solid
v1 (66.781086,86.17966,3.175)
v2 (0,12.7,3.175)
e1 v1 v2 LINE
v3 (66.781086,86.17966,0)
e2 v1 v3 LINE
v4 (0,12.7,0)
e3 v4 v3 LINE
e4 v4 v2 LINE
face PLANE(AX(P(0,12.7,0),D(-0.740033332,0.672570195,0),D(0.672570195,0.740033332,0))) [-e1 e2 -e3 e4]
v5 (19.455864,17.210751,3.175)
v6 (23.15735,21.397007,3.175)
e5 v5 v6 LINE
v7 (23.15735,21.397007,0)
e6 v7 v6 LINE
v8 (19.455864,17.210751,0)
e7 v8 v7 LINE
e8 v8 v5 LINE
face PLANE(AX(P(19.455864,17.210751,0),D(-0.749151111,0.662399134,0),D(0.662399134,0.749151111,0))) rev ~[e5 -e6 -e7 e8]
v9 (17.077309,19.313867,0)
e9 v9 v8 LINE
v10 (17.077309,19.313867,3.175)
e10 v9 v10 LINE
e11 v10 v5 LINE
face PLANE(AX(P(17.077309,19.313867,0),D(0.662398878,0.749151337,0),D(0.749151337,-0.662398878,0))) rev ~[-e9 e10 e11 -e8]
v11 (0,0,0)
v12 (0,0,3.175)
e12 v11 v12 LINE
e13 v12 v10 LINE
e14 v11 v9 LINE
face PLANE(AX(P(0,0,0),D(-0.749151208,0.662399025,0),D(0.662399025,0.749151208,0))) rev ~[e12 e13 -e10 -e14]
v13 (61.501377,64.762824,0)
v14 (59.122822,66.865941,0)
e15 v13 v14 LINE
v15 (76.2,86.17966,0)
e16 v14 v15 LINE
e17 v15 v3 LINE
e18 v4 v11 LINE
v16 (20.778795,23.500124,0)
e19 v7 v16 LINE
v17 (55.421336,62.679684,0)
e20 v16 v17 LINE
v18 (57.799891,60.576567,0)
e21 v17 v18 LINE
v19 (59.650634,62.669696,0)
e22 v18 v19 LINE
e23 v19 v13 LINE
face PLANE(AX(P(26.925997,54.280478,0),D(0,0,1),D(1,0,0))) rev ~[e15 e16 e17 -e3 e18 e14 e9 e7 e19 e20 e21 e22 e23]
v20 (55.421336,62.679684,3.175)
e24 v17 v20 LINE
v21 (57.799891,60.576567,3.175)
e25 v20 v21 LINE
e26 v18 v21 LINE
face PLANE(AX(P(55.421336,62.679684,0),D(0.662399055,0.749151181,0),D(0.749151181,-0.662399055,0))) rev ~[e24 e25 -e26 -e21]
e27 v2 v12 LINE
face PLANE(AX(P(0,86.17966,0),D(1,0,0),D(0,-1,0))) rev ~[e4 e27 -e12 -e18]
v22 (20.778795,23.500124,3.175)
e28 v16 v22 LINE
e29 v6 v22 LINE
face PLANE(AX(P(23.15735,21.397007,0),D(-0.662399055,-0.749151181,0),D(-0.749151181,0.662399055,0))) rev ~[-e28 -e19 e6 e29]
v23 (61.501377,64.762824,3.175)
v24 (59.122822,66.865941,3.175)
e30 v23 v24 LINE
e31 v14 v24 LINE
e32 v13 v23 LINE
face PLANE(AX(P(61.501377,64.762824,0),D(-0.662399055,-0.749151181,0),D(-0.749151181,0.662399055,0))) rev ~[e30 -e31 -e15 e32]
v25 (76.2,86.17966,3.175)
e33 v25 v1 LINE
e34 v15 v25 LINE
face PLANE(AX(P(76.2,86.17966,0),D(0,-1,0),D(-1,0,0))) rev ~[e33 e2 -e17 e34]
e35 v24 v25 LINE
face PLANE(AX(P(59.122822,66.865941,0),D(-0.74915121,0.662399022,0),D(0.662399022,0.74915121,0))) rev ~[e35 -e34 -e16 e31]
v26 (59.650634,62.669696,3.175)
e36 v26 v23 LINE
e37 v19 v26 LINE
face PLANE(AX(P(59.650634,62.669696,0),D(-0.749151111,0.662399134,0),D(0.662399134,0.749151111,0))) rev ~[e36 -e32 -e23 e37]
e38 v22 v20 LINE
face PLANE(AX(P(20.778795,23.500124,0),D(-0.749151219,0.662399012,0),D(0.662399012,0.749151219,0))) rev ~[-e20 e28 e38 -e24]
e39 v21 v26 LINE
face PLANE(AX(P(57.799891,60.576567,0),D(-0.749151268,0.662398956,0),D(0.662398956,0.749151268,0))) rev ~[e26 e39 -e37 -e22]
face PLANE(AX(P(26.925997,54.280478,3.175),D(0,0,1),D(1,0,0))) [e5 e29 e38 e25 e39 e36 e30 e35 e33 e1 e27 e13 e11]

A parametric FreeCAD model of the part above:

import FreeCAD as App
import Part
import Sketcher

V = App.Vector
Q = App.Units.Quantity

doc = App.newDocument("Part")
params = doc.addObject("Spreadsheet::Sheet", "Params")
for row, (alias, value) in enumerate([
    ("sketch1_width", "3 in"),
    ("sketch1_length", "0.22 in"),
    ("sketch1_length2", "0.11 in"),
    ("sketch1_length3", "1.015 in"),
    ("sketch1_length4", "0.125 in"),
    ("pad1_length", "0.125 in"),
    ("pocket1_length", "1 in"),
], start=1):
    params.set(f"A{row}", alias)
    params.set(f"B{row}", "=" + value)
    params.setAlias(f"B{row}", alias)

body = doc.addObject("PartDesign::Body", "Body")

# Sketch on XY plane
sketch1 = body.newObject("Sketcher::SketchObject", "Sketch")
sketch1.AttachmentSupport = (doc.getObject("XY_Plane"), [""])
sketch1.MapMode = "FlatFace"
sketch1.addGeometry(Part.LineSegment(V(0, 86.2, 0), V(0, 0, 0)), False)
sketch1.addGeometry(Part.LineSegment(V(0, 0, 0), V(17.1, 19.3, 0)), False)
sketch1.addGeometry(Part.LineSegment(V(17.1, 19.3, 0), V(19.5, 17.2, 0)), False)
sketch1.addGeometry(Part.LineSegment(V(19.5, 17.2, 0), V(23.2, 21.4, 0)), False)
sketch1.addGeometry(Part.LineSegment(V(23.2, 21.4, 0), V(20.8, 23.5, 0)), False)
sketch1.addGeometry(Part.LineSegment(V(20.8, 23.5, 0), V(55.4, 62.7, 0)), False)
sketch1.addGeometry(Part.LineSegment(V(55.4, 62.7, 0), V(57.8, 60.6, 0)), False)
sketch1.addGeometry(Part.LineSegment(V(57.8, 60.6, 0), V(59.7, 62.7, 0)), False)
sketch1.addGeometry(Part.LineSegment(V(59.7, 62.7, 0), V(61.5, 64.8, 0)), False)
sketch1.addGeometry(Part.LineSegment(V(61.5, 64.8, 0), V(59.1, 66.9, 0)), False)
sketch1.addGeometry(Part.LineSegment(V(59.1, 66.9, 0), V(76.2, 86.2, 0)), False)
sketch1.addGeometry(Part.LineSegment(V(76.2, 86.2, 0), V(0, 86.2, 0)), False)
sketch1.addConstraint(Sketcher.Constraint("Coincident", 0, 2, 1, 1))
sketch1.addConstraint(Sketcher.Constraint("Coincident", 1, 2, 2, 1))
sketch1.addConstraint(Sketcher.Constraint("Coincident", 2, 2, 3, 1))
sketch1.addConstraint(Sketcher.Constraint("Coincident", 3, 2, 4, 1))
sketch1.addConstraint(Sketcher.Constraint("Coincident", 4, 2, 5, 1))
sketch1.addConstraint(Sketcher.Constraint("Coincident", 5, 2, 6, 1))
sketch1.addConstraint(Sketcher.Constraint("Coincident", 6, 2, 7, 1))
sketch1.addConstraint(Sketcher.Constraint("Coincident", 7, 2, 8, 1))
sketch1.addConstraint(Sketcher.Constraint("Coincident", 8, 2, 9, 1))
sketch1.addConstraint(Sketcher.Constraint("Coincident", 9, 2, 10, 1))
sketch1.addConstraint(Sketcher.Constraint("Coincident", 10, 2, 11, 1))
sketch1.addConstraint(Sketcher.Constraint("Coincident", 11, 2, 0, 1))
sketch1.addConstraint(Sketcher.Constraint("Vertical", 0))
sketch1.addConstraint(Sketcher.Constraint("Horizontal", 11))
sketch1.addConstraint(Sketcher.Constraint("Coincident", 0, 2, -1, 1))
sketch1.addConstraint(Sketcher.Constraint("Perpendicular", 1, 2))
sketch1.addConstraint(Sketcher.Constraint("Perpendicular", 2, 3))
sketch1.addConstraint(Sketcher.Constraint("Perpendicular", 3, 4))
sketch1.addConstraint(Sketcher.Constraint("Perpendicular", 4, 5))
sketch1.addConstraint(Sketcher.Constraint("Perpendicular", 5, 6))
sketch1.addConstraint(Sketcher.Constraint("Perpendicular", 6, 7))
sketch1.addConstraint(Sketcher.Constraint("Parallel", 7, 8))
sketch1.addConstraint(Sketcher.Constraint("Perpendicular", 8, 9))
sketch1.addConstraint(Sketcher.Constraint("Perpendicular", 9, 10))
sketch1.addConstraint(Sketcher.Constraint("Equal", 2, 4))
sketch1.addConstraint(Sketcher.Constraint("Equal", 4, 6))
sketch1.addConstraint(Sketcher.Constraint("Equal", 7, 8))
sketch1.addConstraint(Sketcher.Constraint("Equal", 6, 9))
sketch1.addConstraint(Sketcher.Constraint("DistanceX", 11, 2, 11, 1, Q("3 in")))
sketch1.addConstraint(Sketcher.Constraint("Distance", 3, Q("0.22 in")))
sketch1.addConstraint(Sketcher.Constraint("Distance", 7, Q("0.11 in")))
sketch1.addConstraint(Sketcher.Constraint("Distance", 1, Q("1.015 in")))
sketch1.addConstraint(Sketcher.Constraint("Distance", 2, Q("0.125 in")))
sketch1.addConstraint(Sketcher.Constraint("Distance", 5, Q("2.059 in")))
sketch1.addConstraint(Sketcher.Constraint("DistanceY", 0, 2, 0, 1, Q("3.3929 in")))
sketch1.setExpression("Constraints[28]", "Params.sketch1_width")
sketch1.setExpression("Constraints[29]", "Params.sketch1_length")
sketch1.setExpression("Constraints[30]", "Params.sketch1_length2")
sketch1.setExpression("Constraints[31]", "Params.sketch1_length3")
sketch1.setExpression("Constraints[32]", "Params.sketch1_length4")
pad1 = body.newObject("PartDesign::Pad", "Pad")
pad1.Profile = sketch1
pad1.setExpression("Length", "Params.pad1_length")

# Sketch on XY plane
sketch2 = body.newObject("Sketcher::SketchObject", "Sketch001")
sketch2.AttachmentSupport = (doc.getObject("XY_Plane"), [""])
sketch2.MapMode = "FlatFace"
sketch2.addGeometry(Part.LineSegment(V(0, 91, 0), V(0, 13, 0)), False)
sketch2.addGeometry(Part.LineSegment(V(0, 13, 0), V(71, 91, 0)), False)
sketch2.addGeometry(Part.LineSegment(V(71, 91, 0), V(0, 91, 0)), False)
sketch2.addConstraint(Sketcher.Constraint("Coincident", 0, 2, 1, 1))
sketch2.addConstraint(Sketcher.Constraint("Coincident", 1, 2, 2, 1))
sketch2.addConstraint(Sketcher.Constraint("Coincident", 2, 2, 0, 1))
sketch2.addConstraint(Sketcher.Constraint("Vertical", 0))
sketch2.addConstraint(Sketcher.Constraint("Horizontal", 2))
sketch2.addConstraint(Sketcher.Constraint("PointOnObject", 0, 2, -2))
sketch2.addConstraint(Sketcher.Constraint("DistanceY", -1, 1, 0, 2, Q("0.5 in")))
sketch2.addConstraint(Sketcher.Constraint("Distance", 1, 105.912359))
sketch2.addConstraint(Sketcher.Constraint("DistanceX", 2, 2, 2, 1, 71.233496))
pocket1 = body.newObject("PartDesign::Pocket", "Pocket")
pocket1.Profile = sketch2
pocket1.setExpression("Length", "Params.pocket1_length")
pocket1.Reversed = True

doc.recompute()
